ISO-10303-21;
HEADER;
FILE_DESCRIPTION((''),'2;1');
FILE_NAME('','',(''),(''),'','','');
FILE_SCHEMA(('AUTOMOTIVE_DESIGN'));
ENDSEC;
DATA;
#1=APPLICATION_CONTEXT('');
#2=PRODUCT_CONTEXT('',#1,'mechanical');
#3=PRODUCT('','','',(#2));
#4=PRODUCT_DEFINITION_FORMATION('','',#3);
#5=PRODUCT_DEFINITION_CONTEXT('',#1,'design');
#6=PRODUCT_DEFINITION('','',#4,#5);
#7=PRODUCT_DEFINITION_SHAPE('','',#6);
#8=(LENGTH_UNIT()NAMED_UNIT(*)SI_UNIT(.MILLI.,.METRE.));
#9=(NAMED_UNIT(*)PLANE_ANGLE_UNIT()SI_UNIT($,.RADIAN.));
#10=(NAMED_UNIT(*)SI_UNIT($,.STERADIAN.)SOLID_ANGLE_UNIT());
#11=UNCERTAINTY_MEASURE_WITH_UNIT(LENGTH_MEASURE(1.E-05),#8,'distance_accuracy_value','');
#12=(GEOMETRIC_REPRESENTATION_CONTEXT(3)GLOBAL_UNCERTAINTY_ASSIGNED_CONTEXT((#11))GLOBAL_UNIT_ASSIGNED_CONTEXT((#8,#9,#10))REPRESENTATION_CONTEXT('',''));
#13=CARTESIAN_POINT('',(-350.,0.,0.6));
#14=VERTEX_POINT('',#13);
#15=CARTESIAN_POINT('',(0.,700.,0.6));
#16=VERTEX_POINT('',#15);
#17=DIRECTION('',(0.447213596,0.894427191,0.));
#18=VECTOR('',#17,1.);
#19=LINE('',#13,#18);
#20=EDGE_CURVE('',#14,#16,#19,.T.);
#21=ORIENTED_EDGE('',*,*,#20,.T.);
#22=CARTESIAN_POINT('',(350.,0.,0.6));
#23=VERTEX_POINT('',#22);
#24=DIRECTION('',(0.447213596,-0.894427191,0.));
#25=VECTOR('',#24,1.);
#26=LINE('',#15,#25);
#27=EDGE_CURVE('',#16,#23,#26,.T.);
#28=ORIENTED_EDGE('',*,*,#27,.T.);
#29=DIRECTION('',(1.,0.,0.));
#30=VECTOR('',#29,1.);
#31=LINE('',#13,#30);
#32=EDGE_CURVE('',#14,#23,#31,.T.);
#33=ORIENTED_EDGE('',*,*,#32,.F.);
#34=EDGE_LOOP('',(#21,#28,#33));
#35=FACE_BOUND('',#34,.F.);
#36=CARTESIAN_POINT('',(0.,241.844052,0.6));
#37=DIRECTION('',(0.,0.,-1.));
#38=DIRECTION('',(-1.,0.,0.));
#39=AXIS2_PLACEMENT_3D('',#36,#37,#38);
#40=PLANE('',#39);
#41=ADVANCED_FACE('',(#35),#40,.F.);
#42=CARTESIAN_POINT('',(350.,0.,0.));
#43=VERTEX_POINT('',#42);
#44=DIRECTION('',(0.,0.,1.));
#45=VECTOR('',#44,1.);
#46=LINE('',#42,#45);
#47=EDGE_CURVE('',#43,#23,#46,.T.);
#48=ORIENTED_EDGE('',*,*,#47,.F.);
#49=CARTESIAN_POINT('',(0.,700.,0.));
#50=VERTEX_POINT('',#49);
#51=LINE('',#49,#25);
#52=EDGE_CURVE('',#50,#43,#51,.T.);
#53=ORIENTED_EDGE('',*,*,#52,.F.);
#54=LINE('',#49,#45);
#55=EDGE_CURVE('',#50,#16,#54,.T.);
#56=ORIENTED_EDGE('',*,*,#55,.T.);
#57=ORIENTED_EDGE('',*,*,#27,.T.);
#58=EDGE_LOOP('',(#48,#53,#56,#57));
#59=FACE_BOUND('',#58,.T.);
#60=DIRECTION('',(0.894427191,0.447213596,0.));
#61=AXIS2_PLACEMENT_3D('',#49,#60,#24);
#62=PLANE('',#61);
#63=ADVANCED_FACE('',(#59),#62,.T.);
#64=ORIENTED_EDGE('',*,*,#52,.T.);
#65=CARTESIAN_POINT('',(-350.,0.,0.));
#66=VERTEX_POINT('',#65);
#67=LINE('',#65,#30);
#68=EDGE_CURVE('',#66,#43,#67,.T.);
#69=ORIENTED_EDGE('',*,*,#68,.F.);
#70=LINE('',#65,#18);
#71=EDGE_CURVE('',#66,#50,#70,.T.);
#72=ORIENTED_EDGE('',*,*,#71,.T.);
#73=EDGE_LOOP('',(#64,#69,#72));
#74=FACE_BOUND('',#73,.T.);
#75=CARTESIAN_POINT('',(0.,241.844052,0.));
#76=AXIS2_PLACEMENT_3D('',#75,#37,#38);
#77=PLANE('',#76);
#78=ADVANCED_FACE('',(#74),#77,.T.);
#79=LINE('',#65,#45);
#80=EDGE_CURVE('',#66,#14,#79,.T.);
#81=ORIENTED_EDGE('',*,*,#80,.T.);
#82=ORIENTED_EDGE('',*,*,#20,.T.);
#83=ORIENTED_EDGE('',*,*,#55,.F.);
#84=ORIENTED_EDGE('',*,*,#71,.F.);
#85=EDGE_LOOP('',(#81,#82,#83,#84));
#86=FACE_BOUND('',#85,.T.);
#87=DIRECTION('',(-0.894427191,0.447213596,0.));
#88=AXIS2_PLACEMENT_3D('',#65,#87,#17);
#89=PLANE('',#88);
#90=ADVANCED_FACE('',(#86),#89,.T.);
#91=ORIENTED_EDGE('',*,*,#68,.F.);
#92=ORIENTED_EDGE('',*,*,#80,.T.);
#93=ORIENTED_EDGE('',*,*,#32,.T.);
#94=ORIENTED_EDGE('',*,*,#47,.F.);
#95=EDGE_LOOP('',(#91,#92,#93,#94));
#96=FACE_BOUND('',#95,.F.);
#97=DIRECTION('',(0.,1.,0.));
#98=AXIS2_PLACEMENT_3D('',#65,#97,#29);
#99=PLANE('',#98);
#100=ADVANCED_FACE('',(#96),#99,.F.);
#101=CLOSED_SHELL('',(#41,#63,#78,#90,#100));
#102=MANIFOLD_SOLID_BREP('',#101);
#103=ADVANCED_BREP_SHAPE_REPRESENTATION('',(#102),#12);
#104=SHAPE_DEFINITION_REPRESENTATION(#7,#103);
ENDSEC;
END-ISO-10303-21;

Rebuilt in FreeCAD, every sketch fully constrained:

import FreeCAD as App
import Part
import Sketcher

V = App.Vector
Q = App.Units.Quantity

doc = App.newDocument("Part")
body = doc.addObject("PartDesign::Body", "Body")

# Sketch on XY plane
sketch1 = doc.addObject("Sketcher::SketchObject", "Sketch")
body.addObject(sketch1)
sketch1.AttachmentSupport = (doc.XY_Plane, [""])
sketch1.MapMode = "FlatFace"
sketch1.addGeometry([
    Part.LineSegment(V(0, 700, 0), V(-350, 0, 0)),
    Part.LineSegment(V(-350, 0, 0), V(350, 0, 0)),
    Part.LineSegment(V(350, 0, 0), V(0, 700, 0)),
], False)
sketch1.addConstraint([
    Sketcher.Constraint("Coincident", 0, 2, 1, 1),
    Sketcher.Constraint("Coincident", 1, 2, 2, 1),
    Sketcher.Constraint("Coincident", 2, 2, 0, 1),
    Sketcher.Constraint("Horizontal", 1),
    Sketcher.Constraint("Symmetric", 0, 2, 1, 2, -1, 1),
    Sketcher.Constraint("PointOnObject", 2, 2, -2),
    Sketcher.Constraint("DistanceX", 1, 1, 1, 2, Q("700 mm")),
    Sketcher.Constraint("DistanceY", -1, 1, 2, 2, Q("700 mm")),
])
pad1 = doc.addObject("PartDesign::Pad", "Pad")
body.addObject(pad1)
pad1.Profile = sketch1
pad1.Length = 0.6

doc.recompute()
